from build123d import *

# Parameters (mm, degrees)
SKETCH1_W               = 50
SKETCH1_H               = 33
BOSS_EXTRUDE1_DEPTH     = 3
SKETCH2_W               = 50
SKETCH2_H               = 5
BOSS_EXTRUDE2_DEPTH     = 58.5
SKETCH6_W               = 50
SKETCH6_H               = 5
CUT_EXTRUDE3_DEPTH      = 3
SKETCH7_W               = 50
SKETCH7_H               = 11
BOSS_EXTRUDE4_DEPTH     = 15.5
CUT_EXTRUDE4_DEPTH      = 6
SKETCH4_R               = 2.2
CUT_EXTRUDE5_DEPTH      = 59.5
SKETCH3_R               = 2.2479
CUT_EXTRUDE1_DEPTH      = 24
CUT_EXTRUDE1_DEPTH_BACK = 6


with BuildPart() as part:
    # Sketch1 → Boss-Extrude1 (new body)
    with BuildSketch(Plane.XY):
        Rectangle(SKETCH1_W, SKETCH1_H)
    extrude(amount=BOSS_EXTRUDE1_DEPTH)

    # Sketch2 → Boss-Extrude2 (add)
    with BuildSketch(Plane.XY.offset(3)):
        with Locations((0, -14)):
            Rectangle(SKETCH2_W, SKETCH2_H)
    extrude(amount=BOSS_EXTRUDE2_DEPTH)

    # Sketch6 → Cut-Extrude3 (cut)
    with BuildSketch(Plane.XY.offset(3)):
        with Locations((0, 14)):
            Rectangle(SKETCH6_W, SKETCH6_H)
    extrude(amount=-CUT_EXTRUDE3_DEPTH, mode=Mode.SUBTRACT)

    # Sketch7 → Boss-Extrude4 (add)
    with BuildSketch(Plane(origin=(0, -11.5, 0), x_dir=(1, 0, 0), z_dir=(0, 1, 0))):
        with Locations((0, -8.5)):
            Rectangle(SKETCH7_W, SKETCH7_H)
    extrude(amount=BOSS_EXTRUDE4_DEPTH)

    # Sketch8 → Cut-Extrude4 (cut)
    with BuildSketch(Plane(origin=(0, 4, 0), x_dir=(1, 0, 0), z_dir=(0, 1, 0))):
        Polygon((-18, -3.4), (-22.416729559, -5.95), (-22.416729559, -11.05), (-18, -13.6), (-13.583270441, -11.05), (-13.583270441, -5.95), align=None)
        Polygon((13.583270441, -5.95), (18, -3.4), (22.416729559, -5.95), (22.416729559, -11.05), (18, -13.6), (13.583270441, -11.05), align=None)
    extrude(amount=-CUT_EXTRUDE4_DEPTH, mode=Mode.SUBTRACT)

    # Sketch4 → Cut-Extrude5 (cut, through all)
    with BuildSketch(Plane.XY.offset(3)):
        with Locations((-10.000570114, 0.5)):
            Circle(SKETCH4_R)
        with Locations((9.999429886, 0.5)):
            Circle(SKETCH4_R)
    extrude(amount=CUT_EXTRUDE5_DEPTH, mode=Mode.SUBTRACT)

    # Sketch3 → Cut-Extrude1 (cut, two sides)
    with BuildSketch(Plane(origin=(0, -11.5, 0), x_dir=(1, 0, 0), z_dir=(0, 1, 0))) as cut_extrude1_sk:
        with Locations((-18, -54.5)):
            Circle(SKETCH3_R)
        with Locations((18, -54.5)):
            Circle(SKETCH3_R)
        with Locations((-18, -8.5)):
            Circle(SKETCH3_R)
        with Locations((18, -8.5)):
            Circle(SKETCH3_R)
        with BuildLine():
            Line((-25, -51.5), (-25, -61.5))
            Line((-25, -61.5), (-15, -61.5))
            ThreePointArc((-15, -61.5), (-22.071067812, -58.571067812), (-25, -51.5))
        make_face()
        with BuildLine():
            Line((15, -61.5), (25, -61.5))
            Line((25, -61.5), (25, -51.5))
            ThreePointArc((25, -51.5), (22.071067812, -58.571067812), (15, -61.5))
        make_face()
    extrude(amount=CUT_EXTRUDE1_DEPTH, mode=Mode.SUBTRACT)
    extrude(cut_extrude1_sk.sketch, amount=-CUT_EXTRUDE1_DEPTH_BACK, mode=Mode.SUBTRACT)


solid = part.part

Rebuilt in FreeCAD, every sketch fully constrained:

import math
import FreeCAD as App
import Part
import Sketcher

V = App.Vector
Q = App.Units.Quantity

doc = App.newDocument("Part")
body = doc.addObject("PartDesign::Body", "Body")

sketch1 = body.newObject("Sketcher::SketchObject", "Sketch")
sketch1.AttachmentSupport = (doc.getObject("XY_Plane"), [""])
sketch1.MapMode = "FlatFace"
sketch1.addGeometry([
    Part.LineSegment(V(-25, 16.5, 0), V(-25, -16.5, 0)),
    Part.LineSegment(V(-25, -16.5, 0), V(25, -16.5, 0)),
    Part.LineSegment(V(25, -16.5, 0), V(25, 16.5, 0)),
    Part.LineSegment(V(25, 16.5, 0), V(-25, 16.5, 0)),
], False)
sketch1.addConstraint([
    Sketcher.Constraint("Coincident", 0, 2, 1, 1),
    Sketcher.Constraint("Coincident", 1, 2, 2, 1),
    Sketcher.Constraint("Coincident", 2, 2, 3, 1),
    Sketcher.Constraint("Coincident", 3, 2, 0, 1),
    Sketcher.Constraint("Vertical", 0),
    Sketcher.Constraint("Horizontal", 1),
    Sketcher.Constraint("Vertical", 2),
    Sketcher.Constraint("Horizontal", 3),
    Sketcher.Constraint("Symmetric", 0, 2, 2, 2, -1, 1),
    Sketcher.Constraint("DistanceX", 1, 1, 1, 2, 50.0),
    Sketcher.Constraint("DistanceY", 0, 2, 0, 1, 33.0),
])
pad1 = body.newObject("PartDesign::Pad", "Pad")
pad1.Profile = sketch1
pad1.Length = 3

sketch2 = body.newObject("Sketcher::SketchObject", "Sketch001")
sketch2.AttachmentSupport = (doc.getObject("XY_Plane"), [""])
sketch2.MapMode = "FlatFace"
sketch2.AttachmentOffset = App.Placement(V(0, 0, 3), App.Rotation())
sketch2.addGeometry([
    Part.LineSegment(V(-25, -11.5, 0), V(-25, -16.5, 0)),
    Part.LineSegment(V(-25, -16.5, 0), V(25, -16.5, 0)),
    Part.LineSegment(V(25, -16.5, 0), V(25, -11.5, 0)),
    Part.LineSegment(V(25, -11.5, 0), V(-25, -11.5, 0)),
], False)
sketch2.addConstraint([
    Sketcher.Constraint("Coincident", 0, 2, 1, 1),
    Sketcher.Constraint("Coincident", 1, 2, 2, 1),
    Sketcher.Constraint("Coincident", 2, 2, 3, 1),
    Sketcher.Constraint("Coincident", 3, 2, 0, 1),
    Sketcher.Constraint("Vertical", 0),
    Sketcher.Constraint("Horizontal", 1),
    Sketcher.Constraint("Vertical", 2),
    Sketcher.Constraint("Horizontal", 3),
    Sketcher.Constraint("DistanceX", 1, 1, 1, 2, 50.0),
    Sketcher.Constraint("DistanceY", 0, 2, 0, 1, 5.0),
    Sketcher.Constraint("DistanceX", 0, 2, -1, 1, 25.0),
    Sketcher.Constraint("DistanceY", 0, 2, -1, 1, 16.5),
])
pad2 = body.newObject("PartDesign::Pad", "Pad001")
pad2.Profile = sketch2
pad2.Length = 58.5

sketch3 = body.newObject("Sketcher::SketchObject", "Sketch002")
sketch3.AttachmentSupport = (doc.getObject("XY_Plane"), [""])
sketch3.MapMode = "FlatFace"
sketch3.AttachmentOffset = App.Placement(V(0, 0, 3), App.Rotation())
sketch3.addGeometry([
    Part.LineSegment(V(-25, 16.5, 0), V(-25, 11.5, 0)),
    Part.LineSegment(V(-25, 11.5, 0), V(25, 11.5, 0)),
    Part.LineSegment(V(25, 11.5, 0), V(25, 16.5, 0)),
    Part.LineSegment(V(25, 16.5, 0), V(-25, 16.5, 0)),
], False)
sketch3.addConstraint([
    Sketcher.Constraint("Coincident", 0, 2, 1, 1),
    Sketcher.Constraint("Coincident", 1, 2, 2, 1),
    Sketcher.Constraint("Coincident", 2, 2, 3, 1),
    Sketcher.Constraint("Coincident", 3, 2, 0, 1),
    Sketcher.Constraint("Vertical", 0),
    Sketcher.Constraint("Horizontal", 1),
    Sketcher.Constraint("Vertical", 2),
    Sketcher.Constraint("Horizontal", 3),
    Sketcher.Constraint("DistanceX", 1, 1, 1, 2, 50.0),
    Sketcher.Constraint("DistanceY", 0, 2, 0, 1, 5.0),
    Sketcher.Constraint("DistanceX", 0, 2, -1, 1, 25.0),
    Sketcher.Constraint("DistanceY", -1, 1, 0, 2, 11.5),
])
pocket1 = body.newObject("PartDesign::Pocket", "Pocket")
pocket1.Profile = sketch3
pocket1.Length = 3

sketch4 = body.newObject("Sketcher::SketchObject", "Sketch003")
sketch4.AttachmentSupport = (doc.getObject("XZ_Plane"), [""])
sketch4.MapMode = "FlatFace"
sketch4.AttachmentOffset = App.Placement(V(0, 0, 11.5), App.Rotation())
sketch4.addGeometry([
    Part.LineSegment(V(-25, 3, 0), V(-25, 14, 0)),
    Part.LineSegment(V(-25, 14, 0), V(25, 14, 0)),
    Part.LineSegment(V(25, 14, 0), V(25, 3, 0)),
    Part.LineSegment(V(25, 3, 0), V(-25, 3, 0)),
], False)
sketch4.addConstraint([
    Sketcher.Constraint("Coincident", 0, 2, 1, 1),
    Sketcher.Constraint("Coincident", 1, 2, 2, 1),
    Sketcher.Constraint("Coincident", 2, 2, 3, 1),
    Sketcher.Constraint("Coincident", 3, 2, 0, 1),
    Sketcher.Constraint("Vertical", 0),
    Sketcher.Constraint("Horizontal", 1),
    Sketcher.Constraint("Vertical", 2),
    Sketcher.Constraint("Horizontal", 3),
    Sketcher.Constraint("DistanceX", 1, 1, 1, 2, 50.0),
    Sketcher.Constraint("DistanceY", 0, 1, 0, 2, 11.0),
    Sketcher.Constraint("DistanceX", 0, 2, -1, 1, 25.0),
    Sketcher.Constraint("DistanceY", -1, 1, 0, 2, 14.0),
])
pad3 = body.newObject("PartDesign::Pad", "Pad002")
pad3.Profile = sketch4
pad3.Length = 15.5
pad3.Reversed = True

sketch5 = body.newObject("Sketcher::SketchObject", "Sketch004")
sketch5.AttachmentSupport = (doc.getObject("XZ_Plane"), [""])
sketch5.MapMode = "FlatFace"
sketch5.AttachmentOffset = App.Placement(V(0, 0, -4), App.Rotation())
sketch5.addGeometry([
    Part.LineSegment(V(-18, 3.4, 0), V(-22.41673, 5.95, 0)),
    Part.LineSegment(V(-22.41673, 5.95, 0), V(-22.41673, 11.05, 0)),
    Part.LineSegment(V(-22.41673, 11.05, 0), V(-18, 13.6, 0)),
    Part.LineSegment(V(-18, 13.6, 0), V(-13.58327, 11.05, 0)),
    Part.LineSegment(V(-13.58327, 11.05, 0), V(-13.58327, 5.95, 0)),
    Part.LineSegment(V(-13.58327, 5.95, 0), V(-18, 3.4, 0)),
    Part.LineSegment(V(18, 3.4, 0), V(13.58327, 5.95, 0)),
    Part.LineSegment(V(13.58327, 5.95, 0), V(13.58327, 11.05, 0)),
    Part.LineSegment(V(13.58327, 11.05, 0), V(18, 13.6, 0)),
    Part.LineSegment(V(18, 13.6, 0), V(22.41673, 11.05, 0)),
    Part.LineSegment(V(22.41673, 11.05, 0), V(22.41673, 5.95, 0)),
    Part.LineSegment(V(22.41673, 5.95, 0), V(18, 3.4, 0)),
], False)
sketch5.addConstraint([
    Sketcher.Constraint("Coincident", 0, 2, 1, 1),
    Sketcher.Constraint("Coincident", 1, 2, 2, 1),
    Sketcher.Constraint("Coincident", 2, 2, 3, 1),
    Sketcher.Constraint("Coincident", 3, 2, 4, 1),
    Sketcher.Constraint("Coincident", 4, 2, 5, 1),
    Sketcher.Constraint("Coincident", 5, 2, 0, 1),
    Sketcher.Constraint("Coincident", 6, 2, 7, 1),
    Sketcher.Constraint("Coincident", 7, 2, 8, 1),
    Sketcher.Constraint("Coincident", 8, 2, 9, 1),
    Sketcher.Constraint("Coincident", 9, 2, 10, 1),
    Sketcher.Constraint("Coincident", 10, 2, 11, 1),
    Sketcher.Constraint("Coincident", 11, 2, 6, 1),
    Sketcher.Constraint("Vertical", 1),
    Sketcher.Constraint("Vertical", 4),
    Sketcher.Constraint("Vertical", 7),
    Sketcher.Constraint("Vertical", 10),
    Sketcher.Constraint("Symmetric", 4, 2, 6, 2, -2),
    Sketcher.Constraint("Symmetric", 2, 2, 8, 2, -2),
    Sketcher.Constraint("Symmetric", 1, 2, 9, 2, -2),
    Sketcher.Constraint("Symmetric", 5, 2, 11, 2, -2),
    Sketcher.Constraint("Parallel", 0, 3),
    Sketcher.Constraint("Parallel", 2, 5),
    Sketcher.Constraint("Parallel", 3, 6),
    Sketcher.Constraint("Parallel", 5, 8),
    Sketcher.Constraint("Parallel", 8, 11),
    Sketcher.Constraint("Horizontal", 1, 2, 3, 2),
    Sketcher.Constraint("Horizontal", 0, 2, 4, 2),
    Sketcher.Constraint("Angle", 0, Q("150 deg")),
    Sketcher.Constraint("DistanceY", 1, 1, 1, 2, 5.1),
    Sketcher.Constraint("DistanceX", 2, 2, -1, 1, 18.0),
    Sketcher.Constraint("Distance", 0, 5.1),
    Sketcher.Constraint("DistanceY", -1, 1, 2, 2, 13.6),
])
pocket2 = body.newObject("PartDesign::Pocket", "Pocket001")
pocket2.Profile = sketch5
pocket2.Length = 6
pocket2.Reversed = True

sketch6 = body.newObject("Sketcher::SketchObject", "Sketch005")
sketch6.AttachmentSupport = (doc.getObject("XY_Plane"), [""])
sketch6.MapMode = "FlatFace"
sketch6.AttachmentOffset = App.Placement(V(0, 0, 3), App.Rotation())
sketch6.addGeometry([
    Part.Circle(V(-10.00057, 0.5, 0), V(0, 0, 1), 2.2),
    Part.Circle(V(9.99943, 0.5, 0), V(0, 0, 1), 2.2),
], False)
sketch6.addConstraint([
    Sketcher.Constraint("Equal", 0, 1),
    Sketcher.Constraint("Horizontal", 0, 3, 1, 3),
    Sketcher.Constraint("Diameter", 0, 4.4),
    Sketcher.Constraint("DistanceX", 0, 3, 1, 3, 20.0),
    Sketcher.Constraint("DistanceY", -1, 1, 0, 3, 0.5),
    Sketcher.Constraint("DistanceX", 0, 3, -1, 1, 10.00057),
])
pocket3 = body.newObject("PartDesign::Pocket", "Pocket002")
pocket3.Profile = sketch6
pocket3.Type = "ThroughAll"
pocket3.Reversed = True

sketch7 = body.newObject("Sketcher::SketchObject", "Sketch006")
sketch7.AttachmentSupport = (doc.getObject("XZ_Plane"), [""])
sketch7.MapMode = "FlatFace"
sketch7.AttachmentOffset = App.Placement(V(0, 0, 11.5), App.Rotation())
sketch7.addGeometry([
    Part.Circle(V(-18, 54.5, 0), V(0, 0, 1), 2.2479),
    Part.Circle(V(18, 54.5, 0), V(0, 0, 1), 2.2479),
    Part.Circle(V(-18, 8.5, 0), V(0, 0, 1), 2.2479),
    Part.Circle(V(18, 8.5, 0), V(0, 0, 1), 2.2479),
    Part.LineSegment(V(-25, 51.5, 0), V(-25, 61.5, 0)),
    Part.LineSegment(V(-25, 61.5, 0), V(-15, 61.5, 0)),
    Part.ArcOfCircle(Part.Circle(V(-15, 51.5, 0), V(0, 0, 1), 10), math.radians(90), math.radians(180)),
    Part.LineSegment(V(15, 61.5, 0), V(25, 61.5, 0)),
    Part.LineSegment(V(25, 61.5, 0), V(25, 51.5, 0)),
    Part.ArcOfCircle(Part.Circle(V(15, 51.5, 0), V(0, 0, 1), 10), math.radians(0), math.radians(90)),
], False)
sketch7.addConstraint([
    Sketcher.Constraint("Coincident", 4, 2, 5, 1),
    Sketcher.Constraint("Tangent", 5, 2, 6, 1),
    Sketcher.Constraint("Tangent", 6, 2, 4, 1),
    Sketcher.Constraint("Coincident", 7, 2, 8, 1),
    Sketcher.Constraint("Tangent", 8, 2, 9, 1),
    Sketcher.Constraint("Tangent", 9, 2, 7, 1),
    Sketcher.Constraint("Vertical", 4),
    Sketcher.Constraint("Horizontal", 5),
    Sketcher.Constraint("Horizontal", 7),
    Sketcher.Constraint("Vertical", 8),
    Sketcher.Constraint("Equal", 0, 1),
    Sketcher.Constraint("Equal", 1, 2),
    Sketcher.Constraint("Equal", 2, 3),
    Sketcher.Constraint("Equal", 6, 9),
    Sketcher.Constraint("Symmetric", 0, 3, 1, 3, -2),
    Sketcher.Constraint("Symmetric", 2, 3, 3, 3, -2),
    Sketcher.Constraint("Symmetric", 6, 3, 9, 3, -2),
    Sketcher.Constraint("Vertical", 0, 3, 2, 3),
    Sketcher.Constraint("Radius", 6, 10.0),
    Sketcher.Constraint("DistanceX", 0, 3, -1, 1, 18.0),
    Sketcher.Constraint("DistanceX", 6, 3, -1, 1, 15.0),
    Sketcher.Constraint("DistanceY", 2, 3, 0, 3, 46.0),
    Sketcher.Constraint("DistanceY", 6, 3, 0, 3, 3.0),
    Sketcher.Constraint("Diameter", 0, 4.4958),
    Sketcher.Constraint("DistanceY", -1, 1, 0, 3, 54.5),
])
pocket4 = body.newObject("PartDesign::Pocket", "Pocket003")
pocket4.Profile = sketch7
pocket4.Type = "ThroughAll"
pocket4.Midplane = True

doc.recompute()
